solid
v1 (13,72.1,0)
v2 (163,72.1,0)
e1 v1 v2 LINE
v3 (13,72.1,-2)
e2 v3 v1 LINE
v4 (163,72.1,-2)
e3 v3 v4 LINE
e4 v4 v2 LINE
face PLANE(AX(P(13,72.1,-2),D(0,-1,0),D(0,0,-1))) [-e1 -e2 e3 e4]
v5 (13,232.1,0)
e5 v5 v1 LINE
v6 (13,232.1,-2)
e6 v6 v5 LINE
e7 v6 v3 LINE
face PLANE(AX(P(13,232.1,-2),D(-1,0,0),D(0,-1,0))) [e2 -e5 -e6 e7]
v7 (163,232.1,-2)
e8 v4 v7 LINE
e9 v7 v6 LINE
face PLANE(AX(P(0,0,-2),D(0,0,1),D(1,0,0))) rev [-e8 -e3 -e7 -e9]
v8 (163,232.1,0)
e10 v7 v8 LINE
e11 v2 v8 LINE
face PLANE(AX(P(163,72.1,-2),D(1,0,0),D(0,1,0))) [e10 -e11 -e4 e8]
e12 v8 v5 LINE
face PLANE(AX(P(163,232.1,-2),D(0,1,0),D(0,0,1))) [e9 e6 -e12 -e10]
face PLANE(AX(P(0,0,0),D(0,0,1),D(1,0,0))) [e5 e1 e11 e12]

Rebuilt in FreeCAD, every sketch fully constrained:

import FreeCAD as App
import Part
import Sketcher

doc = App.newDocument("Part")
params = doc.addObject("Spreadsheet::Sheet", "Params")
for row, (alias, value) in enumerate([
    ("sketch1_width", "150 mm"),
    ("sketch1_height", "160 mm"),
    ("pad1_length", "2 mm"),
], start=1):
    params.set(f"A{row}", alias)
    params.set(f"B{row}", "=" + value)
    params.setAlias(f"B{row}", alias)

body = doc.addObject("PartDesign::Body", "Body")

# Sketch on XY plane
sketch1 = body.newObject("Sketcher::SketchObject", "Sketch")
sketch1.AttachmentSupport = (doc.getObject("XY_Plane"), [""])
sketch1.MapMode = "FlatFace"
sketch1.addGeometry([
    Part.LineSegment(App.Vector(13, 232.1, 0), App.Vector(13, 72.1, 0)),
    Part.LineSegment(App.Vector(13, 72.1, 0), App.Vector(163, 72.1, 0)),
    Part.LineSegment(App.Vector(163, 72.1, 0), App.Vector(163, 232.1, 0)),
    Part.LineSegment(App.Vector(163, 232.1, 0), App.Vector(13, 232.1, 0)),
], False)
sketch1.addConstraint([
    Sketcher.Constraint("Coincident", 0, 2, 1, 1),
    Sketcher.Constraint("Coincident", 1, 2, 2, 1),
    Sketcher.Constraint("Coincident", 2, 2, 3, 1),
    Sketcher.Constraint("Coincident", 3, 2, 0, 1),
    Sketcher.Constraint("Vertical", 0),
    Sketcher.Constraint("Horizontal", 1),
    Sketcher.Constraint("Vertical", 2),
    Sketcher.Constraint("Horizontal", 3),
    Sketcher.Constraint("DistanceX", 1, 1, 1, 2, 150.0),
    Sketcher.Constraint("DistanceY", 0, 2, 0, 1, 160.0),
    Sketcher.Constraint("DistanceX", -1, 1, 0, 2, 13.0),
    Sketcher.Constraint("DistanceY", -1, 1, 0, 2, 72.1),
])
sketch1.setExpression("Constraints[8]", "Params.sketch1_width")
sketch1.setExpression("Constraints[9]", "Params.sketch1_height")
pad1 = body.newObject("PartDesign::Pad", "Pad")
pad1.Profile = sketch1
pad1.setExpression("Length", "Params.pad1_length")
pad1.Reversed = True

doc.recompute()
